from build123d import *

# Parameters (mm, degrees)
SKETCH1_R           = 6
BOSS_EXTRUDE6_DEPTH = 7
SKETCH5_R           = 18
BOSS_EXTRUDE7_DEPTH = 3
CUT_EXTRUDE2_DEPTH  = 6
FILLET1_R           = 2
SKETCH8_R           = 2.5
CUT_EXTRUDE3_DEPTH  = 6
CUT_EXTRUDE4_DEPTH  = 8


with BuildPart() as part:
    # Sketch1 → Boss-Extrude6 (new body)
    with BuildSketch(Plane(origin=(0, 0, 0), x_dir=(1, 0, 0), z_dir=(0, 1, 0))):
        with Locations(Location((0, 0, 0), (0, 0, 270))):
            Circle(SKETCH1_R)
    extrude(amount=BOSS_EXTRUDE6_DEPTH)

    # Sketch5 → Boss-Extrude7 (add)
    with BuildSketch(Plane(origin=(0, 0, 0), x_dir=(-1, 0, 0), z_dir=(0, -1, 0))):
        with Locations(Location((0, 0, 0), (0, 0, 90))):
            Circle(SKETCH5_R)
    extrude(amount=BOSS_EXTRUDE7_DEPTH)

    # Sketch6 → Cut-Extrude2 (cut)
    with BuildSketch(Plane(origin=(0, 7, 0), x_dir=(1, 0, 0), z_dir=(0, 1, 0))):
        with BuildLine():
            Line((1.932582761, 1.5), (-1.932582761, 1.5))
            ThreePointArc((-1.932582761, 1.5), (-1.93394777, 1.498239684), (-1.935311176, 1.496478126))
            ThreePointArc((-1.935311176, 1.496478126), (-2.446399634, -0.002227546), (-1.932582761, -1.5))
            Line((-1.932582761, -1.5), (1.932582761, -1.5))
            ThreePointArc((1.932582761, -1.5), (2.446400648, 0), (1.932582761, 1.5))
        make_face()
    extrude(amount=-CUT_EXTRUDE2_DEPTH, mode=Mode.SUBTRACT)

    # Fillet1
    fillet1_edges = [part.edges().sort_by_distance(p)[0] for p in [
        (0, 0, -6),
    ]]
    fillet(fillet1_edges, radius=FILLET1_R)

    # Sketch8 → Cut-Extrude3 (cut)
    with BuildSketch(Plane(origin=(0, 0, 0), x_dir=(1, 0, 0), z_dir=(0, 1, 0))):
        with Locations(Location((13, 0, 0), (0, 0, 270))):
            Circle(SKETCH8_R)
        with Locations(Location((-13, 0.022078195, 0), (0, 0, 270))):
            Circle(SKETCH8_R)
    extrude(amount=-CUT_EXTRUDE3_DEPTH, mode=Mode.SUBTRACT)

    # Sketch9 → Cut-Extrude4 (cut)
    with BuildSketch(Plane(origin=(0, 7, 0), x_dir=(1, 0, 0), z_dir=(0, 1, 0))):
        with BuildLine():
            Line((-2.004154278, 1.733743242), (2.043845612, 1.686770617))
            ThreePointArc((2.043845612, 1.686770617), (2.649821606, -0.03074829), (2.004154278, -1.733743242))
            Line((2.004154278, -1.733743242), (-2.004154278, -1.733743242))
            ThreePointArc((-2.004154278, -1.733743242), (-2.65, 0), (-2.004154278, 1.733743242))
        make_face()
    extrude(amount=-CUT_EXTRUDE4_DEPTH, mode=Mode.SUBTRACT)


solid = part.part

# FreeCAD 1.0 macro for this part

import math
import FreeCAD as App
import Part
import Sketcher


def edges_at(feature, points):
    """Names of the edges that pass closest to the given points."""
    edges = feature.Shape.Edges
    near = lambda p: min(range(len(edges)), key=lambda i: edges[i].distToShape(Part.Vertex(*p))[0])
    return sorted({f"Edge{near(p) + 1}" for p in points})

doc = App.newDocument("Part")
body = doc.addObject("PartDesign::Body", "Body")

sketch1 = body.newObject("Sketcher::SketchObject", "Sketch")
sketch1.AttachmentSupport = (doc.getObject("XZ_Plane"), [""])
sketch1.MapMode = "FlatFace"
sketch1.addGeometry(Part.Circle(App.Vector(0, 0, 0), App.Vector(0, 0, 1), 6), False)
sketch1.addConstraint([
    Sketcher.Constraint("Coincident", 0, 3, -1, 1),
    Sketcher.Constraint("Diameter", 0, 12.0),
])
pad1 = body.newObject("PartDesign::Pad", "Pad")
pad1.Profile = sketch1
pad1.Length = 7
pad1.Reversed = True

sketch2 = body.newObject("Sketcher::SketchObject", "Sketch001")
sketch2.AttachmentSupport = (doc.getObject("XZ_Plane"), [""])
sketch2.MapMode = "FlatFace"
sketch2.addGeometry(Part.Circle(App.Vector(0, 0, 0), App.Vector(0, 0, 1), 18), False)
sketch2.addConstraint([
    Sketcher.Constraint("Coincident", 0, 3, -1, 1),
    Sketcher.Constraint("Diameter", 0, 36.0),
])
pad2 = body.newObject("PartDesign::Pad", "Pad001")
pad2.Profile = sketch2
pad2.Length = 3

sketch3 = body.newObject("Sketcher::SketchObject", "Sketch002")
sketch3.AttachmentSupport = (doc.getObject("XZ_Plane"), [""])
sketch3.MapMode = "FlatFace"
sketch3.AttachmentOffset = App.Placement(App.Vector(0, 0, -7), App.Rotation())
sketch3.addGeometry([
    Part.LineSegment(App.Vector(1.932583, -1.5, 0), App.Vector(-1.932583, -1.5, 0)),
    Part.ArcOfCircle(Part.Circle(App.Vector(0.000402, 0.000311, 0), App.Vector(0, 0, 1), 2.446909), math.radians(-142.28702), math.radians(-142.182701)),
    Part.ArcOfCircle(Part.Circle(App.Vector(0, 0, 0), App.Vector(0, 0, 1), 2.446401), math.radians(142.182694), math.radians(217.712965)),
    Part.LineSegment(App.Vector(-1.932583, 1.5, 0), App.Vector(1.932583, 1.5, 0)),
    Part.ArcOfCircle(Part.Circle(App.Vector(0, 0, 0), App.Vector(0, 0, 1), 2.446401), math.radians(-37.817306), math.radians(37.817306)),
], False)
sketch3.addConstraint([
    Sketcher.Constraint("Coincident", 0, 2, 1, 2),
    Sketcher.Constraint("Tangent", 1, 1, 2, 2),
    Sketcher.Constraint("Coincident", 2, 1, 3, 1),
    Sketcher.Constraint("Coincident", 3, 2, 4, 2),
    Sketcher.Constraint("Coincident", 4, 1, 0, 1),
    Sketcher.Constraint("Horizontal", 0),
    Sketcher.Constraint("Horizontal", 3),
    Sketcher.Constraint("Coincident", 2, 3, -1, 1),
    Sketcher.Constraint("Coincident", 4, 3, -1, 1),
    Sketcher.Constraint("Equal", 2, 4),
    Sketcher.Constraint("Vertical", 0, 2, 2, 1),
    Sketcher.Constraint("DistanceY", 0, 2, 2, 1, 3.0),
    Sketcher.Constraint("Radius", 2, 2.446401),
    Sketcher.Constraint("Radius", 1, 2.446909),
    Sketcher.Constraint("DistanceX", 1, 1, -1, 1, 1.935311),
])
pocket1 = body.newObject("PartDesign::Pocket", "Pocket")
pocket1.Profile = sketch3
pocket1.Length = 6
pocket1.Reversed = True
doc.recompute()

fillet = body.newObject("PartDesign::Fillet", "Fillet")
fillet.Base = (pocket1, edges_at(pocket1, [(0, 0, -6)]))
fillet.Radius = 2

sketch4 = body.newObject("Sketcher::SketchObject", "Sketch003")
sketch4.AttachmentSupport = (doc.getObject("XZ_Plane"), [""])
sketch4.MapMode = "FlatFace"
sketch4.addGeometry([
    Part.Circle(App.Vector(13, 0, 0), App.Vector(0, 0, 1), 2.5),
    Part.Circle(App.Vector(-13, -0.022078, 0), App.Vector(0, 0, 1), 2.5),
], False)
sketch4.addConstraint([
    Sketcher.Constraint("Equal", 0, 1),
    Sketcher.Constraint("PointOnObject", 0, 3, -1),
    Sketcher.Constraint("Diameter", 0, 5.0),
    Sketcher.Constraint("DistanceX", -1, 1, 0, 3, 13.0),
    Sketcher.Constraint("DistanceX", 1, 3, -1, 1, 13.0),
    Sketcher.Constraint("DistanceY", 1, 3, -1, 1, 0.022078),
])
pocket2 = body.newObject("PartDesign::Pocket", "Pocket001")
pocket2.Profile = sketch4
pocket2.Length = 6
pocket2.Reversed = True

sketch5 = body.newObject("Sketcher::SketchObject", "Sketch004")
sketch5.AttachmentSupport = (doc.getObject("XZ_Plane"), [""])
sketch5.MapMode = "FlatFace"
sketch5.AttachmentOffset = App.Placement(App.Vector(0, 0, -7), App.Rotation())
sketch5.addGeometry([
    Part.LineSegment(App.Vector(2.043846, -1.686771, 0), App.Vector(-2.004154, -1.733743, 0)),
    Part.ArcOfCircle(Part.Circle(App.Vector(0, 0, 0), App.Vector(0, 0, 1), 2.65), math.radians(139.137745), math.radians(220.862255)),
    Part.LineSegment(App.Vector(-2.004154, 1.733743, 0), App.Vector(2.004154, 1.733743, 0)),
    Part.ArcOfCircle(Part.Circle(App.Vector(0, 0, 0), App.Vector(0, 0, 1), 2.65), math.radians(-39.532604), math.radians(40.862255)),
], False)
sketch5.addConstraint([
    Sketcher.Constraint("Coincident", 0, 2, 1, 2),
    Sketcher.Constraint("Coincident", 1, 1, 2, 1),
    Sketcher.Constraint("Coincident", 2, 2, 3, 2),
    Sketcher.Constraint("Coincident", 3, 1, 0, 1),
    Sketcher.Constraint("Horizontal", 2),
    Sketcher.Constraint("Coincident", 1, 3, -1, 1),
    Sketcher.Constraint("Coincident", 3, 3, -1, 1),
    Sketcher.Constraint("Equal", 1, 3),
    Sketcher.Constraint("Vertical", 0, 2, 1, 1),
    Sketcher.Constraint("Radius", 1, 2.65),
    Sketcher.Constraint("DistanceX", 0, 2, 3, 1, 4.048),
    Sketcher.Constraint("DistanceX", 2, 1, 2, 2, 4.008309),
])
pocket3 = body.newObject("PartDesign::Pocket", "Pocket002")
pocket3.Profile = sketch5
pocket3.Length = 8
pocket3.Reversed = True

doc.recompute()
